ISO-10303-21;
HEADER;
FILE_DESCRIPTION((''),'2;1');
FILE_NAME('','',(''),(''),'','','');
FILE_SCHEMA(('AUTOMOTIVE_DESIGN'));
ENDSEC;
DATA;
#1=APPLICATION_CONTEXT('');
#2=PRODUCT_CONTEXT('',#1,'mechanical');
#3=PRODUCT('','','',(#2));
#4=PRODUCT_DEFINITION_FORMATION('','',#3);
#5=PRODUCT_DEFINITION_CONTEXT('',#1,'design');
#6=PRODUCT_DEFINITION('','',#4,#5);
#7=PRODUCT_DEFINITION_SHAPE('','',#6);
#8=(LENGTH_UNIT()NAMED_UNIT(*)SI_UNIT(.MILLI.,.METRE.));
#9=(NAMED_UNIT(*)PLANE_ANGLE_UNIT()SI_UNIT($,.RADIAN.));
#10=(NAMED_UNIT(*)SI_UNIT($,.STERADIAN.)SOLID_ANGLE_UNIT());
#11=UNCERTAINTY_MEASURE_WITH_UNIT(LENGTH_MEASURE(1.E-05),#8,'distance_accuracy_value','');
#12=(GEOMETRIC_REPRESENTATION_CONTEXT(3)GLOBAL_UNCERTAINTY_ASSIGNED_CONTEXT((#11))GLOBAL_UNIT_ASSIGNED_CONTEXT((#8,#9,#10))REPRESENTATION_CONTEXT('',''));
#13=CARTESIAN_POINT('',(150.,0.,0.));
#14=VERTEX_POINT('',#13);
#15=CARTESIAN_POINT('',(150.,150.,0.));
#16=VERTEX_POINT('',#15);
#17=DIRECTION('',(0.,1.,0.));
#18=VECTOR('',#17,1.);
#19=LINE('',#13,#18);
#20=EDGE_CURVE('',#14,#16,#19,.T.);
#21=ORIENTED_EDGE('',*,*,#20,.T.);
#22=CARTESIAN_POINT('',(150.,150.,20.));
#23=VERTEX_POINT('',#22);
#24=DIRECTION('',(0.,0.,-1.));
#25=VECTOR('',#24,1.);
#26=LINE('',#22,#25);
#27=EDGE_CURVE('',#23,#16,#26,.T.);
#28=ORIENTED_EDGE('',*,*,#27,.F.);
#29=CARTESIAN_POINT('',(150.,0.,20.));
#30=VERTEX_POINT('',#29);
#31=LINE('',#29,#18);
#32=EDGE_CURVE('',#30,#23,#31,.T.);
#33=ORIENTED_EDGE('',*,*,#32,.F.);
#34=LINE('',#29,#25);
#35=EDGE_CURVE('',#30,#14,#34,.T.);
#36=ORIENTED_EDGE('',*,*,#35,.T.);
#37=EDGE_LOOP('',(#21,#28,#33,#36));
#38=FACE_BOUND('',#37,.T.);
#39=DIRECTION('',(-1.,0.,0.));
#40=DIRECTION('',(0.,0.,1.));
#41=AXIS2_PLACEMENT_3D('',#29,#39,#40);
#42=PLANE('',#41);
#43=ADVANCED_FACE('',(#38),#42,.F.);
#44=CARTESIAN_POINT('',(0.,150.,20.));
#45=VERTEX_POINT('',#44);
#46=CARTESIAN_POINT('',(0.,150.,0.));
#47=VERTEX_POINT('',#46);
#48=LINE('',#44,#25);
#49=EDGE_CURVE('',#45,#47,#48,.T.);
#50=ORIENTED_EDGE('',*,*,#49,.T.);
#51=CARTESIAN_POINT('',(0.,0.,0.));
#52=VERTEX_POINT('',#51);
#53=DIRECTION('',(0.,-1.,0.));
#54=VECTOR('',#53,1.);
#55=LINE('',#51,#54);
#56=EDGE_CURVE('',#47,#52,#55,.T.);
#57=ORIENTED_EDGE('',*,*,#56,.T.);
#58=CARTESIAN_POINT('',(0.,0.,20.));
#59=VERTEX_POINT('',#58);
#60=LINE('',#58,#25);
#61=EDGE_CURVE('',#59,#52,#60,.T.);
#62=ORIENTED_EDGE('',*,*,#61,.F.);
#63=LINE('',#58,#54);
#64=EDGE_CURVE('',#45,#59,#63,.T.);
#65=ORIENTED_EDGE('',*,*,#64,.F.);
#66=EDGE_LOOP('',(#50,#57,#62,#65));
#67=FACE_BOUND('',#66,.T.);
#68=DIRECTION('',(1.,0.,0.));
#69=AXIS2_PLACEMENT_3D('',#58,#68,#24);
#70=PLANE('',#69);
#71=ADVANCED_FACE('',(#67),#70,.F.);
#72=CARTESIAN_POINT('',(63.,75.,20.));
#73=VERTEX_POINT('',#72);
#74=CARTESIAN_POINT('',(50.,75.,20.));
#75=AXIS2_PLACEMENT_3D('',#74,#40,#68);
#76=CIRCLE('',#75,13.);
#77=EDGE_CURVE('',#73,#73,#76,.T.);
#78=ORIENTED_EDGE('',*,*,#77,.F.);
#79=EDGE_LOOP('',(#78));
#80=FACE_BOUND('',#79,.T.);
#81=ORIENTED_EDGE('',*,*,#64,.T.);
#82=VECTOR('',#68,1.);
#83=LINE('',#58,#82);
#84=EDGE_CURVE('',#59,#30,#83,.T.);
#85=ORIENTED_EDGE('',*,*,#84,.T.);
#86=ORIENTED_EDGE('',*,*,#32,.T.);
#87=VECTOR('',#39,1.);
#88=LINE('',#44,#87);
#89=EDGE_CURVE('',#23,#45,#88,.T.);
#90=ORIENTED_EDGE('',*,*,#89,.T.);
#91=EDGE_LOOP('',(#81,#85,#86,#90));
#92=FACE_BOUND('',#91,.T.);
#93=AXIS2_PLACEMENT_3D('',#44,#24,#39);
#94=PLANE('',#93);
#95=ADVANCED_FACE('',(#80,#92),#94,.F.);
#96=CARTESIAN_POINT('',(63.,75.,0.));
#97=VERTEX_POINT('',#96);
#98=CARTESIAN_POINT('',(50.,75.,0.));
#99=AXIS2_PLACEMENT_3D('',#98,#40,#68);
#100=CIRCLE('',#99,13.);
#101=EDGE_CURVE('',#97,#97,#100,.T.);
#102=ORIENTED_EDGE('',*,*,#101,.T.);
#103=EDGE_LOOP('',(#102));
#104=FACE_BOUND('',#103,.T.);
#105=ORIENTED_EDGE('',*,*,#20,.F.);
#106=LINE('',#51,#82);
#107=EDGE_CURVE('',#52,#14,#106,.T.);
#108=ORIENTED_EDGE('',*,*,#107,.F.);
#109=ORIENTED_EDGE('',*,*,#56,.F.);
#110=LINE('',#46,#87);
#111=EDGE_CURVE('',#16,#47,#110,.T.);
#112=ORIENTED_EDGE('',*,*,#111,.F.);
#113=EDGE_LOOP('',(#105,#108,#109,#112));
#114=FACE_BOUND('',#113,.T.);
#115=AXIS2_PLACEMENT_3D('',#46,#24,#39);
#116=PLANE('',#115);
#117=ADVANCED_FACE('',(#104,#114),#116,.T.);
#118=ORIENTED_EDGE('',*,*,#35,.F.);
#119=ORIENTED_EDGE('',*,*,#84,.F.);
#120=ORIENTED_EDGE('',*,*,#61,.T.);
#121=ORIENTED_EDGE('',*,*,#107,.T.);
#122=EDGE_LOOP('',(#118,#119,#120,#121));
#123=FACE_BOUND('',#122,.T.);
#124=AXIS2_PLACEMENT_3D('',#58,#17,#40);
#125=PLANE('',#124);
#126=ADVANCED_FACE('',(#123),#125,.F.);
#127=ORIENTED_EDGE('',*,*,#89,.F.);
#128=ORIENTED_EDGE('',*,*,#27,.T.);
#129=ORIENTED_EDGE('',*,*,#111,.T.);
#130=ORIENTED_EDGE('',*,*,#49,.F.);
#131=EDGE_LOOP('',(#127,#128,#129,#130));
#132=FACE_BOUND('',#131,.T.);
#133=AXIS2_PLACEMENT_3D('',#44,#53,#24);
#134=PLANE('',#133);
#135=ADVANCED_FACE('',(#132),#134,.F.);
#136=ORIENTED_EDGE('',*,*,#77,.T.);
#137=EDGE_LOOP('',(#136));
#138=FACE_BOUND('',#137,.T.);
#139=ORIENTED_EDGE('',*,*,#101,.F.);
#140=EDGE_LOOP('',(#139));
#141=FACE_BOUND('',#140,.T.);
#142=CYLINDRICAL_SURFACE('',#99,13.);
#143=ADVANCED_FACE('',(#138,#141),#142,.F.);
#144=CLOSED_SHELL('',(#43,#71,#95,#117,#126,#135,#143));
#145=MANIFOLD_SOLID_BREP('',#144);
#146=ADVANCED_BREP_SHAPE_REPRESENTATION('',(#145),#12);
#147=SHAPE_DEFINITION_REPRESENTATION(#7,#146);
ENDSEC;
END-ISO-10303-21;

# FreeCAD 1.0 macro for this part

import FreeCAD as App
import Part
import Sketcher

V = App.Vector
Q = App.Units.Quantity


def add_polygon(sketch, points):
    """Adds a closed chain of lines whose ends are joined by coincident constraints."""
    first, n = sketch.GeometryCount, len(points)
    for a, b in zip(points, points[1:] + points[:1]):
        sketch.addGeometry(Part.LineSegment(App.Vector(*a, 0), App.Vector(*b, 0)), False)
    for i in range(n):
        sketch.addConstraint(Sketcher.Constraint("Coincident", first + i, 2, first + (i + 1) % n, 1))

doc = App.newDocument("Part")
body = doc.addObject("PartDesign::Body", "Body")

# Sketch on XY plane
sketch1 = body.newObject("Sketcher::SketchObject", "Sketch")
sketch1.AttachmentSupport = (doc.getObject("XY_Plane"), [""])
sketch1.MapMode = "FlatFace"
add_polygon(sketch1, [(0, 150), (0, 0), (150, 0), (150, 150)])  # lines 0-3
sketch1.addConstraint([
    Sketcher.Constraint("Vertical", 0),
    Sketcher.Constraint("Horizontal", 1),
    Sketcher.Constraint("Vertical", 2),
    Sketcher.Constraint("Horizontal", 3),
    Sketcher.Constraint("Coincident", 0, 2, -1, 1),
    Sketcher.Constraint("Equal", 3, 0),
    Sketcher.Constraint("DistanceX", 1, 1, 1, 2, Q("150 mm")),
])
pad1 = body.newObject("PartDesign::Pad", "Pad")
pad1.Profile = sketch1
pad1.Length = 20

# Sketch on XY plane
sketch2 = body.newObject("Sketcher::SketchObject", "Sketch001")
sketch2.AttachmentSupport = (doc.getObject("XY_Plane"), [""])
sketch2.MapMode = "FlatFace"
sketch2.AttachmentOffset = App.Placement(V(0, 0, 20), App.Rotation())
sketch2.addGeometry(Part.Circle(V(50, 75, 0), V(0, 0, 1), 13), False)
sketch2.addConstraint([
    Sketcher.Constraint("Diameter", 0, Q("26 mm")),
    Sketcher.Constraint("DistanceX", -1, 1, 0, 3, Q("50 mm")),
    Sketcher.Constraint("DistanceY", -1, 1, 0, 3, Q("75 mm")),
])
pocket1 = body.newObject("PartDesign::Pocket", "Pocket")
pocket1.Profile = sketch2
pocket1.Type = "ThroughAll"

doc.recompute()
